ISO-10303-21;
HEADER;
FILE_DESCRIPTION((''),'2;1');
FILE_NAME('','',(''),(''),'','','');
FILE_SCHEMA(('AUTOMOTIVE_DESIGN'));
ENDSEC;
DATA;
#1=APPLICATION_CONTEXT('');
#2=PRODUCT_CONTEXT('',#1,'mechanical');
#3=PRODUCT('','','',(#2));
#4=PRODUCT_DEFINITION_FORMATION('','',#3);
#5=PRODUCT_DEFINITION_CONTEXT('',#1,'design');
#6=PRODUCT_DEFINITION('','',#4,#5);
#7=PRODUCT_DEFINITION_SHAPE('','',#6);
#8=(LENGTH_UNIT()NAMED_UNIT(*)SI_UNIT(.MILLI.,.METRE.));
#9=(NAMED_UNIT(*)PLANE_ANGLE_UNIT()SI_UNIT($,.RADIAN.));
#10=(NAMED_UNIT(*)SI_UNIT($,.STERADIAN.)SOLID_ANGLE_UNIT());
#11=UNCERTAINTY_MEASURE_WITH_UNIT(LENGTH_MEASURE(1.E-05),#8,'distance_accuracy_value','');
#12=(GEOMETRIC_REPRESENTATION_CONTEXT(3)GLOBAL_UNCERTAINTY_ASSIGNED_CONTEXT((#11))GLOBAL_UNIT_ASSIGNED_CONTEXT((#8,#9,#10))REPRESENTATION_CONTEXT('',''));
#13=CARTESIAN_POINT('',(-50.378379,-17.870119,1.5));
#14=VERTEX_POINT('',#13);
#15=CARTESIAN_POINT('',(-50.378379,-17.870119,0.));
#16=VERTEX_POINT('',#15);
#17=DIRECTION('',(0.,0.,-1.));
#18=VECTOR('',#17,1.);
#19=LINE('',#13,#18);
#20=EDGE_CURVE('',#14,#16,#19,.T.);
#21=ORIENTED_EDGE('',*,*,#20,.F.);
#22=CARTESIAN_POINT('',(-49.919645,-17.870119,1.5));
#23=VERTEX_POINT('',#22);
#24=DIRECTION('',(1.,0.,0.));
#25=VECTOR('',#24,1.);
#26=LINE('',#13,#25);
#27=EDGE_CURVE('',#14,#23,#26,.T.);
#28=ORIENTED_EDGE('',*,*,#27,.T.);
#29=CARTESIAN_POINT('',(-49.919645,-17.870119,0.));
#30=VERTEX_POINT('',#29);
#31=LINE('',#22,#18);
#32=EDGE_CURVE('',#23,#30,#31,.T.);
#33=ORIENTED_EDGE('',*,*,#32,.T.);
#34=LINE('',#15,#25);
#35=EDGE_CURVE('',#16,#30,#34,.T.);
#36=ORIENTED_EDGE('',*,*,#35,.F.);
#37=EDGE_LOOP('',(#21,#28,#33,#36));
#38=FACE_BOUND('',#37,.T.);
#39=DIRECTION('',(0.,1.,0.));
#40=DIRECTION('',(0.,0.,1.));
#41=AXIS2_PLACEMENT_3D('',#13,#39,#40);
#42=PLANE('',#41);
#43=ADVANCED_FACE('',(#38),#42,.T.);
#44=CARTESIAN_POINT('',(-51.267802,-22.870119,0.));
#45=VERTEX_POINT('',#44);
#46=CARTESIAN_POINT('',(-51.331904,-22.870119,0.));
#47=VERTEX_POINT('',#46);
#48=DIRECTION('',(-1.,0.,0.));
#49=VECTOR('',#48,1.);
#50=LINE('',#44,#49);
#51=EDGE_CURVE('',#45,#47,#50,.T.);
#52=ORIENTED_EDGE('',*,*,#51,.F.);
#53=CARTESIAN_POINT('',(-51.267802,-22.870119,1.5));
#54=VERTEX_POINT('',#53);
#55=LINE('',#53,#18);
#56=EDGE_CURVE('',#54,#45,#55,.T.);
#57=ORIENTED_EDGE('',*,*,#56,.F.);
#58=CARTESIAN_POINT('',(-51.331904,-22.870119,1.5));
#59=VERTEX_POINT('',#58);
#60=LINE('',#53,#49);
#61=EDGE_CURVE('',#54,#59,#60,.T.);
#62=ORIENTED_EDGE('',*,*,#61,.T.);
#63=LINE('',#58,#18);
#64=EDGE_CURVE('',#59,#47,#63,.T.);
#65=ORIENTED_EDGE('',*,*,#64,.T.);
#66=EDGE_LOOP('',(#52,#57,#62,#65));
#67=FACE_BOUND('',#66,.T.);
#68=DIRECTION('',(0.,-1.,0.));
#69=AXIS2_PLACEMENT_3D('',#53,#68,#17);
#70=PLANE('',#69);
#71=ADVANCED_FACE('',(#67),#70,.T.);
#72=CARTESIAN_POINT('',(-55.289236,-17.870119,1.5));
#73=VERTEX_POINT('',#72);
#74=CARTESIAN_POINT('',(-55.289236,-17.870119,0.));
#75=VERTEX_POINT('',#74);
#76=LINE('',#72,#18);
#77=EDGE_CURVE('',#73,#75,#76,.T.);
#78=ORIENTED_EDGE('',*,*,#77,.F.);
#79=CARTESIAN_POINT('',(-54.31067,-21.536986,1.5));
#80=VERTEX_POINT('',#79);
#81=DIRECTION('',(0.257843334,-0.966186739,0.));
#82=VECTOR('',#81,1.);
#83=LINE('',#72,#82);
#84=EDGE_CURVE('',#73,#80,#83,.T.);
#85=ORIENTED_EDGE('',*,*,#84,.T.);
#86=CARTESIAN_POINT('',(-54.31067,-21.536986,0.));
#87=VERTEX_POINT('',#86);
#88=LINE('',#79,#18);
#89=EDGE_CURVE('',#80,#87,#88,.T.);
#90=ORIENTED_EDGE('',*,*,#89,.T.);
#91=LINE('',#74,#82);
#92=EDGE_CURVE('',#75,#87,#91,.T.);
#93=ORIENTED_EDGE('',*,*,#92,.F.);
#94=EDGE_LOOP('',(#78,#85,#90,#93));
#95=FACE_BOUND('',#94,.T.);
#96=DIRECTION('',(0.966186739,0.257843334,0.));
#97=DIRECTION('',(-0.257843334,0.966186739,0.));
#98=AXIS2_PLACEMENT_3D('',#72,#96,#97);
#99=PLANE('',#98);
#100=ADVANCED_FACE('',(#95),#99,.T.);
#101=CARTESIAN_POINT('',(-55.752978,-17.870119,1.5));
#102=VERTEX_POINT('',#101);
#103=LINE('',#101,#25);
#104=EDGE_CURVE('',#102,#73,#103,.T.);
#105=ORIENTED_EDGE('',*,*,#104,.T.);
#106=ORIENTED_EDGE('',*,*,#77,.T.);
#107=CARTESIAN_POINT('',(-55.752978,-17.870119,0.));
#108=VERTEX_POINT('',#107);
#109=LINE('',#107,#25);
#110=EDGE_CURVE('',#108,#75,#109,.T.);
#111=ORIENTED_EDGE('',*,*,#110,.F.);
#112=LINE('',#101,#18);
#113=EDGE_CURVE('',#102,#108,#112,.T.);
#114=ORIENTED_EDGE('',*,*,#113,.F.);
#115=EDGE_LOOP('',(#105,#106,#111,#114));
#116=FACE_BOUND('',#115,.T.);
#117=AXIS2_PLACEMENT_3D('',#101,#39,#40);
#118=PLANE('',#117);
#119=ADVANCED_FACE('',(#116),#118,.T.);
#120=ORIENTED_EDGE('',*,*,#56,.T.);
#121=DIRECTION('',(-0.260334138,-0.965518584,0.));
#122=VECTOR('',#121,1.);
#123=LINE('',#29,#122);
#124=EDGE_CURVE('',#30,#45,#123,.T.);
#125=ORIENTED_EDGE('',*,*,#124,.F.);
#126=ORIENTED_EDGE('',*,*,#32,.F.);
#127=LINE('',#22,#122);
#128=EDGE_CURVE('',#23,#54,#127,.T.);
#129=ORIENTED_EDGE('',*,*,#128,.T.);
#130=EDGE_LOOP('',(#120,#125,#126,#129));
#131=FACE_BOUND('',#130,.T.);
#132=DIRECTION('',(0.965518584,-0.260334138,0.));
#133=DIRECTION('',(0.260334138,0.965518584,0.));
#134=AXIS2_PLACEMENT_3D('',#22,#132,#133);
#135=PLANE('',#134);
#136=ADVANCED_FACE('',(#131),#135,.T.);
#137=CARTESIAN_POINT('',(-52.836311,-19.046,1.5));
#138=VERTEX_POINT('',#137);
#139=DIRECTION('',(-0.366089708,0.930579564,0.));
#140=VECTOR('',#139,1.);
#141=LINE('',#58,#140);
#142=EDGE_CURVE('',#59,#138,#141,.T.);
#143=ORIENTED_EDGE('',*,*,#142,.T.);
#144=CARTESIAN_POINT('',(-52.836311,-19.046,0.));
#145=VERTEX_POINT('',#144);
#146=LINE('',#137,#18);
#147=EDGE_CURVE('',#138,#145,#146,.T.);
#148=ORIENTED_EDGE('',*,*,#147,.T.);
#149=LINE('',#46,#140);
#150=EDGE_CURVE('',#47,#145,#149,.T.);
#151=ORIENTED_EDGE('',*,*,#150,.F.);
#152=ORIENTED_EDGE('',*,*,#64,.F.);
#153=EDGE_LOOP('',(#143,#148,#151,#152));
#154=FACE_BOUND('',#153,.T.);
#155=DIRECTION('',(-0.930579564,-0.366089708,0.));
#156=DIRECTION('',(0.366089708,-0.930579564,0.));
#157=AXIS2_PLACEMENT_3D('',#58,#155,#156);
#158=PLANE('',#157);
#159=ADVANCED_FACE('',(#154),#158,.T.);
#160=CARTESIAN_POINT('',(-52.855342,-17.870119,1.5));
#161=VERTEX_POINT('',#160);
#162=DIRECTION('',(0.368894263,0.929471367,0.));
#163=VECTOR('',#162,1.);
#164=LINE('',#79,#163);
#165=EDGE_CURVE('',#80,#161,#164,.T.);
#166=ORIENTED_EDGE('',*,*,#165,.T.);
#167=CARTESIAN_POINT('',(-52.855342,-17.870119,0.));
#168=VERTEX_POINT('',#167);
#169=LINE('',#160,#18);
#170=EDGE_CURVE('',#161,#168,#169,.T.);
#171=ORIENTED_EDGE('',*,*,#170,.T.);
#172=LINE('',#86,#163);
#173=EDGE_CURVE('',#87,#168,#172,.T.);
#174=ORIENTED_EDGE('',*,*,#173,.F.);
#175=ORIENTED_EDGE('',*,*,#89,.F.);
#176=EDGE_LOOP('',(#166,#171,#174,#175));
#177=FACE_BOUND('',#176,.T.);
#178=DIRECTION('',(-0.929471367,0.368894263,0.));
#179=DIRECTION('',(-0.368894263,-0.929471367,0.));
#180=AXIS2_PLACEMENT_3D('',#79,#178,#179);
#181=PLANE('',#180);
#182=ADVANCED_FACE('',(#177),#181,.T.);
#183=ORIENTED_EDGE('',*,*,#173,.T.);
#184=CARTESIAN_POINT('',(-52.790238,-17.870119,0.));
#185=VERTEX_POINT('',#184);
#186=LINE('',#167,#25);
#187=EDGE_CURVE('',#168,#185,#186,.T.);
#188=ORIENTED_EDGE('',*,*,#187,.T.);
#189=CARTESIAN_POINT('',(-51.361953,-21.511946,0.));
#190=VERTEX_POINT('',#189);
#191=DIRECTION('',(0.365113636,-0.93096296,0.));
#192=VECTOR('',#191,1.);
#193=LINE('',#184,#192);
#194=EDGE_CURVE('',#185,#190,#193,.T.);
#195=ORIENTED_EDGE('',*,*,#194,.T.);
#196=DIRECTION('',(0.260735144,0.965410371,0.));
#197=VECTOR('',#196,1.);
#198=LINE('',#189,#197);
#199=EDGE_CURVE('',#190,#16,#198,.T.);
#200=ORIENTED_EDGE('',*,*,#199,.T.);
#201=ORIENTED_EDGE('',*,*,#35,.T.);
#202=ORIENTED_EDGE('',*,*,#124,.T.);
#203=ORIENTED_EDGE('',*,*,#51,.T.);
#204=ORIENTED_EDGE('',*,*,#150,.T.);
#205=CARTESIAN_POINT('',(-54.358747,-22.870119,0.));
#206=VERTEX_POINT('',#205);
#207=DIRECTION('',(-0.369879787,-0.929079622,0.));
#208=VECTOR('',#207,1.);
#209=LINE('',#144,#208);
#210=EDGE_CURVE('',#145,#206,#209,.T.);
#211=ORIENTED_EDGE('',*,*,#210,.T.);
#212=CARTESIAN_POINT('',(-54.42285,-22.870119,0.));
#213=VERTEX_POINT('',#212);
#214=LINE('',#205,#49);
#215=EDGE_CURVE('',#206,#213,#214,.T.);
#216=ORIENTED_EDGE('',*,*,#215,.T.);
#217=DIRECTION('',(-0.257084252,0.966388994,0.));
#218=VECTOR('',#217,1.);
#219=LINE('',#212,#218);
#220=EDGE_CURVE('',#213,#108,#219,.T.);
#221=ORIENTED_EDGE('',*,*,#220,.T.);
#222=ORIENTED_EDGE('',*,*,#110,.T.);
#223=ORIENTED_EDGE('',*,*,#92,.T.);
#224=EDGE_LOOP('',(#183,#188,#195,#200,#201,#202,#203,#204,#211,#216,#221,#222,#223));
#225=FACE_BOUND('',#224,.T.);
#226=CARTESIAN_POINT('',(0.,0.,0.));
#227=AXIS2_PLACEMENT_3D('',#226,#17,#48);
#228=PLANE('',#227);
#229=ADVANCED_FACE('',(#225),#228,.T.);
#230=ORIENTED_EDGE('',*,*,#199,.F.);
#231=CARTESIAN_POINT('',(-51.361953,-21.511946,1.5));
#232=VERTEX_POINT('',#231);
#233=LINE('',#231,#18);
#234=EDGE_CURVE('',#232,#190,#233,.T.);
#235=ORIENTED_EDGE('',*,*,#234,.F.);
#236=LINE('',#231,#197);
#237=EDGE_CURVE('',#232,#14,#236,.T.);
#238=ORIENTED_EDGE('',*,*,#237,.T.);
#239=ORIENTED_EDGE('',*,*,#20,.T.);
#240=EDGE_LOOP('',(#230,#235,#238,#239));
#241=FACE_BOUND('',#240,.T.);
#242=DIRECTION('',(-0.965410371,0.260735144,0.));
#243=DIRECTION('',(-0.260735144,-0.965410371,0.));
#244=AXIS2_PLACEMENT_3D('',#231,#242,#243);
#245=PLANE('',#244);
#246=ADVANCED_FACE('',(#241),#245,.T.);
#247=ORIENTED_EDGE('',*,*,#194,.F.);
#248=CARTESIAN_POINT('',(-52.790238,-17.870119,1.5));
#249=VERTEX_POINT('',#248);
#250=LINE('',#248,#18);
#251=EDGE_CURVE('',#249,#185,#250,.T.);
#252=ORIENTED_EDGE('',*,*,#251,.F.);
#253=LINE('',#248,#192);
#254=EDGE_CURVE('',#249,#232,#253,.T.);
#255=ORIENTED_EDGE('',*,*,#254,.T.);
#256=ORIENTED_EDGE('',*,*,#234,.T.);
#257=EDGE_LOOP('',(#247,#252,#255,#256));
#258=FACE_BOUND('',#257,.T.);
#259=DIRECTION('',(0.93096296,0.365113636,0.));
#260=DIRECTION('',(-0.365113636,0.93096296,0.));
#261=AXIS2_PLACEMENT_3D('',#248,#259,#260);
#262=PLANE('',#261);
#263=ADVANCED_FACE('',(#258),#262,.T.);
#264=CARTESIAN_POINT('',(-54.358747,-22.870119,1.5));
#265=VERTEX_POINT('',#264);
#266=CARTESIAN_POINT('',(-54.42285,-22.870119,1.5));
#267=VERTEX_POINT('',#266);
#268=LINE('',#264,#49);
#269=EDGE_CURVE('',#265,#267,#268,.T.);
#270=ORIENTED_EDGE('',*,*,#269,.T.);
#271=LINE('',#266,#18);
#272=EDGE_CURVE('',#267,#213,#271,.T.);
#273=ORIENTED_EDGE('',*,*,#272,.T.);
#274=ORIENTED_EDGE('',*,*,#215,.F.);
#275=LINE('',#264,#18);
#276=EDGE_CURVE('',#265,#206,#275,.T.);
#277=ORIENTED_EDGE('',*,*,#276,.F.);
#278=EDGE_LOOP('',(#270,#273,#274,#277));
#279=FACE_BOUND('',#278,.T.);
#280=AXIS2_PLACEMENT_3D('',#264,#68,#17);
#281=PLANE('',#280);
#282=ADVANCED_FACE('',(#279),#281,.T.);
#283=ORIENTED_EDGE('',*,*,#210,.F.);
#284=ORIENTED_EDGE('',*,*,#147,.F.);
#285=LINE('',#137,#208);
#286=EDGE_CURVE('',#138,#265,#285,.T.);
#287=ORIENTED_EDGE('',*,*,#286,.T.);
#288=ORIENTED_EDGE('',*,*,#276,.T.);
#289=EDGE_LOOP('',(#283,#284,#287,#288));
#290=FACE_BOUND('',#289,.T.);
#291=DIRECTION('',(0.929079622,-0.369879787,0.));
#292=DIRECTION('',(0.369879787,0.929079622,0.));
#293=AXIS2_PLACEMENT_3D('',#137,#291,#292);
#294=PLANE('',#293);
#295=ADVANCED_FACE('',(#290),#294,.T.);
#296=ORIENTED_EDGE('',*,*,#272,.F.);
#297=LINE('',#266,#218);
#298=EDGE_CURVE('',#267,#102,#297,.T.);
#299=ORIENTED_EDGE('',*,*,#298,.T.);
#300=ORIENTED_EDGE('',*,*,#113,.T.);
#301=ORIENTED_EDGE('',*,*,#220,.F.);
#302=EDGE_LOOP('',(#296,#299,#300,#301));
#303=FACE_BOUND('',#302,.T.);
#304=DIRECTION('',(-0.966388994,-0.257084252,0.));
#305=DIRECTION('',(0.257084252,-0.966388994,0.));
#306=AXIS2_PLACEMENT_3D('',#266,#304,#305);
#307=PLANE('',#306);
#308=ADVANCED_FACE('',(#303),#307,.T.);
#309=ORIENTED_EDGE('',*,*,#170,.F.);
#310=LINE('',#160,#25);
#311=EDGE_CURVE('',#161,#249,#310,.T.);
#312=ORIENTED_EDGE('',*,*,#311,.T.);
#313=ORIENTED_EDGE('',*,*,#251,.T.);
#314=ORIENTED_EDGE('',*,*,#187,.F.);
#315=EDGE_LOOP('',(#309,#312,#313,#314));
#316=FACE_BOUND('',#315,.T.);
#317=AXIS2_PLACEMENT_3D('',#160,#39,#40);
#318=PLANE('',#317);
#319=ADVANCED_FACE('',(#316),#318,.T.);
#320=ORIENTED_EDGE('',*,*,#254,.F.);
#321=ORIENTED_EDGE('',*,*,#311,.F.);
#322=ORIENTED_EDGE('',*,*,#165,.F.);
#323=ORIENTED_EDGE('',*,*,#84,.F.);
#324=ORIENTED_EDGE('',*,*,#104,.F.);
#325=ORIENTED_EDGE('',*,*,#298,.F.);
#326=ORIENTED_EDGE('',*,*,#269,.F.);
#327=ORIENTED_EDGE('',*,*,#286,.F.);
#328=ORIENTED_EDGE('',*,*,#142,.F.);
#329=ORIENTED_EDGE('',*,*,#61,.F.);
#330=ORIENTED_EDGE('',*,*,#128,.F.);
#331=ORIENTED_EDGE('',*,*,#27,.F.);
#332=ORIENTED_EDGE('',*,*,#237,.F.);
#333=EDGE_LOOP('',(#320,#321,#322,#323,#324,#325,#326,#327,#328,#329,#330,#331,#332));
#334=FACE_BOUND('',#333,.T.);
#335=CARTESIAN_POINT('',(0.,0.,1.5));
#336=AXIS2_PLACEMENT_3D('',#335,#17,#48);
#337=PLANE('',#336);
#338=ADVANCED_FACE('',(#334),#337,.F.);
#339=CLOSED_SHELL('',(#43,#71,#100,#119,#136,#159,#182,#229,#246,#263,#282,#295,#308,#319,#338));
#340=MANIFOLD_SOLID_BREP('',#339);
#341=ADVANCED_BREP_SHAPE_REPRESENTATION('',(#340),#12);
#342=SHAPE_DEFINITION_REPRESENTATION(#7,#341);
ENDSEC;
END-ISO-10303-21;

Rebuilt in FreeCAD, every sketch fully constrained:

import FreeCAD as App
import Part
import Sketcher

V = App.Vector
Q = App.Units.Quantity


def add_polygon(sketch, points):
    """Adds a closed chain of lines whose ends are joined by coincident constraints."""
    first, n = sketch.GeometryCount, len(points)
    for a, b in zip(points, points[1:] + points[:1]):
        sketch.addGeometry(Part.LineSegment(App.Vector(*a, 0), App.Vector(*b, 0)), False)
    for i in range(n):
        sketch.addConstraint(Sketcher.Constraint("Coincident", first + i, 2, first + (i + 1) % n, 1))

doc = App.newDocument("Part")
body = doc.addObject("PartDesign::Body", "Body")

# Sketch on XY plane
sketch1 = body.newObject("Sketcher::SketchObject", "Sketch")
sketch1.AttachmentSupport = (doc.getObject("XY_Plane"), [""])
sketch1.MapMode = "FlatFace"
add_polygon(sketch1, [(-55.289236, -17.870119), (-55.752978, -17.870119), (-54.42285, -22.870119), (-54.358747, -22.870119), (-52.836311, -19.046), (-51.331904, -22.870119), (-51.267802, -22.870119), (-49.919645, -17.870119), (-50.378379, -17.870119), (-51.361953, -21.511946), (-52.790238, -17.870119), (-52.855342, -17.870119), (-54.31067, -21.536986)])  # lines 0-12
sketch1.addConstraint([
    Sketcher.Constraint("Horizontal", 0),
    Sketcher.Constraint("Horizontal", 2),
    Sketcher.Constraint("Horizontal", 5),
    Sketcher.Constraint("Horizontal", 7),
    Sketcher.Constraint("Horizontal", 10),
    Sketcher.Constraint("Horizontal", 2, 2, 4, 2),
    Sketcher.Constraint("Horizontal", 0, 2, 6, 2),
    Sketcher.Constraint("Horizontal", 7, 2, 9, 2),
    Sketcher.Constraint("Equal", 2, 5),
    Sketcher.Constraint("DistanceY", 1, 2, 0, 2, Q("5 mm")),
    Sketcher.Constraint("DistanceY", 3, 2, -1, 1, Q("19.046 mm")),
    Sketcher.Constraint("DistanceX", 12, 2, 9, 2, Q("2.498998 mm")),
    Sketcher.Constraint("Distance", 1, Q("5.1739 mm")),
    Sketcher.Constraint("DistanceX", 0, 2, 0, 1, Q("0.463742 mm")),
    Sketcher.Constraint("DistanceX", 5, 2, -1, 1, Q("51.267802 mm")),
    Sketcher.Constraint("DistanceX", 0, 2, 7, 2, Q("5.374599 mm")),
    Sketcher.Constraint("Distance", 3, Q("4.116029 mm")),
    Sketcher.Constraint("Distance", 8, Q("3.77231 mm")),
    Sketcher.Constraint("Distance", 11, Q("3.94511 mm")),
    Sketcher.Constraint("DistanceX", 2, 1, 2, 2, Q("0.064103 mm")),
    Sketcher.Constraint("DistanceX", 7, 2, 7, 1, Q("0.458734 mm")),
    Sketcher.Constraint("DistanceX", 10, 2, 10, 1, Q("0.065104 mm")),
    Sketcher.Constraint("DistanceX", 0, 2, -1, 1, Q("55.752978 mm")),
    Sketcher.Constraint("DistanceY", 0, 2, -1, 1, Q("17.870119 mm")),
    Sketcher.Constraint("DistanceX", 11, 2, -1, 1, Q("54.31067 mm")),
    Sketcher.Constraint("DistanceX", 8, 2, 4, 2, Q("0.030048 mm")),
])
pad1 = body.newObject("PartDesign::Pad", "Pad")
pad1.Profile = sketch1
pad1.Length = 1.5

doc.recompute()
